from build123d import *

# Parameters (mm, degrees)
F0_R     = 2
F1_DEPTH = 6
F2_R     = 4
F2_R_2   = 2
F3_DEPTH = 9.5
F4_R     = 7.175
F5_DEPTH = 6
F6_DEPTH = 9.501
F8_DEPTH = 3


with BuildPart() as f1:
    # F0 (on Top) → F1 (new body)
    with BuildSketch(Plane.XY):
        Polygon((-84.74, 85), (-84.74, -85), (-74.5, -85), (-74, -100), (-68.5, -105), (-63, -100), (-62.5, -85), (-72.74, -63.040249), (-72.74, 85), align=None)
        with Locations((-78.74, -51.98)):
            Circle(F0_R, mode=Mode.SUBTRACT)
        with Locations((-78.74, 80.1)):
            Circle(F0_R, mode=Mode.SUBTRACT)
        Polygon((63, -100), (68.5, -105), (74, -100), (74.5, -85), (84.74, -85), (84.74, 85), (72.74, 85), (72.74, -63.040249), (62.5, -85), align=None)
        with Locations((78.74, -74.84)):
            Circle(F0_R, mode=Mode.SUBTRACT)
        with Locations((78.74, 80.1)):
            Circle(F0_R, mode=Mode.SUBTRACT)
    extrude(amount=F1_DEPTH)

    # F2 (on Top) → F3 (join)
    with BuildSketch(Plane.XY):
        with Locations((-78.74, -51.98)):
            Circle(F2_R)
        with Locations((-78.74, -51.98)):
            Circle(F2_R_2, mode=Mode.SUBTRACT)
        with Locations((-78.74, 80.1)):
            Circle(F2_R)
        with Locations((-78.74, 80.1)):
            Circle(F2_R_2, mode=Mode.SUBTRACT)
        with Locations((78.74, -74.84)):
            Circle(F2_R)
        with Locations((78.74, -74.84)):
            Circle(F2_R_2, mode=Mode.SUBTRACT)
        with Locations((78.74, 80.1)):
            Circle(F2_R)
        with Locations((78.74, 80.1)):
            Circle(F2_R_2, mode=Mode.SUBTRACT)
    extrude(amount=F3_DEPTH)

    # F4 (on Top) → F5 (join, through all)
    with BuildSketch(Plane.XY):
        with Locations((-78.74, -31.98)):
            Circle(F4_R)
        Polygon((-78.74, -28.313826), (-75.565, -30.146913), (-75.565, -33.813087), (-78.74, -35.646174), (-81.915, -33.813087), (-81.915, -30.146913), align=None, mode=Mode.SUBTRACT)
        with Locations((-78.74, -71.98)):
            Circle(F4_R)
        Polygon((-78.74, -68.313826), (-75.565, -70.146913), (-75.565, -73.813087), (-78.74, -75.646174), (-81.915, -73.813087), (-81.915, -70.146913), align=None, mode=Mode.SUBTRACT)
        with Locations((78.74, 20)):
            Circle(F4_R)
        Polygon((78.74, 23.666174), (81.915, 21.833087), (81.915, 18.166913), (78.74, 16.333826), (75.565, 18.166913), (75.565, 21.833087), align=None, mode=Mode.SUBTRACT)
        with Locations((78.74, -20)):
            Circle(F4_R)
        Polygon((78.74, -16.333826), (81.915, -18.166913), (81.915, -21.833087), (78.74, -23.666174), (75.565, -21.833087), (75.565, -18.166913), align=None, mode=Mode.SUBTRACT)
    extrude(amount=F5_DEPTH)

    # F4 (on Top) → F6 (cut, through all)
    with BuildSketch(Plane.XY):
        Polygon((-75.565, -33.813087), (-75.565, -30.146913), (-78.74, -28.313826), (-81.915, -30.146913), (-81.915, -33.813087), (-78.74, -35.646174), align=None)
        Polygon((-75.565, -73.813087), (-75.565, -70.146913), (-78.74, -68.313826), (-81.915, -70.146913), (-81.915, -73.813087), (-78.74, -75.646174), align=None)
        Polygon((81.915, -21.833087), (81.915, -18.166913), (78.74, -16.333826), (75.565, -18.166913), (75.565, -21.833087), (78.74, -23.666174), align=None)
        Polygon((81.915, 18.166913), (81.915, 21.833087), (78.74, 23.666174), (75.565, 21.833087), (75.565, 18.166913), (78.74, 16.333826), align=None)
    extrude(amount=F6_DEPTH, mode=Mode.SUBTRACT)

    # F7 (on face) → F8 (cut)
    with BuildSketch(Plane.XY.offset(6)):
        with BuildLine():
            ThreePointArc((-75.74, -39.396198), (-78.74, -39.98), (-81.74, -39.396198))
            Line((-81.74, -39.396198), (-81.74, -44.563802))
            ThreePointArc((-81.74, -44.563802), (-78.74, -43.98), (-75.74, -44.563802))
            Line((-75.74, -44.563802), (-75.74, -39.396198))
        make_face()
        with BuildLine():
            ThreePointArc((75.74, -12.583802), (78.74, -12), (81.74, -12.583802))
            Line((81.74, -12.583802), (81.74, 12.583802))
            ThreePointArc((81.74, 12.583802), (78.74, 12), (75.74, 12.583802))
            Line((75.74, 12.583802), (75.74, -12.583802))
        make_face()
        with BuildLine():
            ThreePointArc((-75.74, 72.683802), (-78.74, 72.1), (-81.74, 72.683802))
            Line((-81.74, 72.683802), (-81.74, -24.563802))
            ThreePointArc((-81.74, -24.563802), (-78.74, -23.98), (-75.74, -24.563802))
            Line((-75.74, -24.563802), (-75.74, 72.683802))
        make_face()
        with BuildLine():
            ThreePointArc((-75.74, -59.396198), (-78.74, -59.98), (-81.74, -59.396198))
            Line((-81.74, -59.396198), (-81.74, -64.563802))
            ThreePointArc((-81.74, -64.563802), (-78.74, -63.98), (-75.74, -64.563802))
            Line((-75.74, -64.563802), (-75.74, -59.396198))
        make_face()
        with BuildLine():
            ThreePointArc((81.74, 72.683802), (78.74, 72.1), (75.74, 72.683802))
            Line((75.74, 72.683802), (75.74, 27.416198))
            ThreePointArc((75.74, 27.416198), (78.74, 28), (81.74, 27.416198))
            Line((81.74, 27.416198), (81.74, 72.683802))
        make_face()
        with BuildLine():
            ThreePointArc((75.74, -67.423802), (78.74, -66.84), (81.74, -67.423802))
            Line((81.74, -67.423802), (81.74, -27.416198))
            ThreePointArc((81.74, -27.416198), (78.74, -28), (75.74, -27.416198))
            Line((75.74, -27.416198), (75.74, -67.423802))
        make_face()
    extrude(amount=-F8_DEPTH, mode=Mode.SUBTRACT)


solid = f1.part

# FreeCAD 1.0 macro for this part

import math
import FreeCAD as App
import Part
import Sketcher
from FreeCAD import Vector
Q = App.Units.Quantity


def add_polygon(sketch, points):
    """Adds a closed chain of lines whose ends are joined by coincident constraints."""
    first, n = sketch.GeometryCount, len(points)
    for a, b in zip(points, points[1:] + points[:1]):
        sketch.addGeometry(Part.LineSegment(App.Vector(*a, 0), App.Vector(*b, 0)), False)
    for i in range(n):
        sketch.addConstraint(Sketcher.Constraint("Coincident", first + i, 2, first + (i + 1) % n, 1))

doc = App.newDocument("Part")
body = doc.addObject("PartDesign::Body", "Body")
body.AllowCompound = True

# Sketch on XY plane
sketch1 = body.newObject("Sketcher::SketchObject", "Sketch")
sketch1.AttachmentSupport = (doc.getObject("XY_Plane"), [""])
sketch1.MapMode = "FlatFace"
add_polygon(sketch1, [(-84.74, 85), (-84.74, -85), (-74.5, -85), (-74, -100), (-68.5, -105), (-63, -100), (-62.5, -85), (-72.74, -63.040249), (-72.74, 85)])  # lines 0-8
sketch1.addGeometry(Part.Circle(Vector(-78.74, -51.98, 0), Vector(0, 0, 1), 2), False)  # 9
sketch1.addGeometry(Part.Circle(Vector(-78.74, 80.1, 0), Vector(0, 0, 1), 2), False)  # 10
add_polygon(sketch1, [(63, -100), (68.5, -105), (74, -100), (74.5, -85), (84.74, -85), (84.74, 85), (72.74, 85), (72.74, -63.040249), (62.5, -85)])  # lines 11-19
sketch1.addGeometry(Part.Circle(Vector(78.74, -74.84, 0), Vector(0, 0, 1), 2), False)  # 20
sketch1.addGeometry(Part.Circle(Vector(78.74, 80.1, 0), Vector(0, 0, 1), 2), False)  # 21
sketch1.addConstraint([
    Sketcher.Constraint("Vertical", 0),
    Sketcher.Constraint("Horizontal", 1),
    Sketcher.Constraint("Vertical", 7),
    Sketcher.Constraint("Horizontal", 8),
    Sketcher.Constraint("Horizontal", 14),
    Sketcher.Constraint("Vertical", 15),
    Sketcher.Constraint("Horizontal", 16),
    Sketcher.Constraint("Vertical", 17),
    Sketcher.Constraint("Equal", 9, 10),
    Sketcher.Constraint("Equal", 10, 20),
    Sketcher.Constraint("Equal", 20, 21),
    Sketcher.Constraint("Symmetric", 8, 2, 14, 2, -1, 1),
    Sketcher.Constraint("Symmetric", 10, 3, 21, 3, -2),
    Sketcher.Constraint("Symmetric", 3, 2, 11, 2, -2),
    Sketcher.Constraint("Symmetric", 2, 2, 12, 2, -2),
    Sketcher.Constraint("Symmetric", 1, 2, 13, 2, -2),
    Sketcher.Constraint("Symmetric", 7, 2, 16, 2, -2),
    Sketcher.Constraint("Symmetric", 5, 2, 18, 2, -2),
    Sketcher.Constraint("Symmetric", 4, 2, 19, 2, -2),
    Sketcher.Constraint("Parallel", 3, 11),
    Sketcher.Constraint("Parallel", 5, 13),
    Sketcher.Constraint("Horizontal", 2, 2, 4, 2),
    Sketcher.Constraint("Horizontal", 1, 2, 5, 2),
    Sketcher.Constraint("Horizontal", 6, 2, 17, 2),
    Sketcher.Constraint("Vertical", 9, 3, 10, 3),
    Sketcher.Constraint("Vertical", 20, 3, 21, 3),
    Sketcher.Constraint("Diameter", 9, 4.0),
    Sketcher.Constraint("DistanceX", 8, 2, 8, 1, 12.0),
    Sketcher.Constraint("DistanceY", 0, 2, 0, 1, 170.0),
    Sketcher.Constraint("Angle", 6, Q("115 deg")),
    Sketcher.Constraint("DistanceX", 2, 2, -1, 1, 74.0),
    Sketcher.Constraint("DistanceY", 2, 2, -1, 1, 100.0),
    Sketcher.Constraint("DistanceY", 3, 2, -1, 1, 105.0),
    Sketcher.Constraint("DistanceX", 4, 2, -1, 1, 63.0),
    Sketcher.Constraint("DistanceX", 0, 2, 9, 3, 6.0),
    Sketcher.Constraint("DistanceX", 1, 2, 3, 2, 6.0),
    Sketcher.Constraint("DistanceX", 1, 1, 1, 2, 10.24),
    Sketcher.Constraint("DistanceY", -1, 1, 10, 3, 80.1),
    Sketcher.Constraint("DistanceY", 9, 3, -1, 1, 51.98),
    Sketcher.Constraint("DistanceY", 20, 3, -1, 1, 74.84),
])
pad1 = body.newObject("PartDesign::Pad", "Pad")
pad1.Profile = sketch1
pad1.Length = 6

# Sketch on XY plane
sketch2 = body.newObject("Sketcher::SketchObject", "Sketch001")
sketch2.AttachmentSupport = (doc.getObject("XY_Plane"), [""])
sketch2.MapMode = "FlatFace"
sketch2.addGeometry([
    Part.Circle(Vector(-78.74, -51.98, 0), Vector(0, 0, 1), 4),  # 0
    Part.Circle(Vector(-78.74, -51.98, 0), Vector(0, 0, 1), 2),  # 1
    Part.Circle(Vector(-78.74, 80.1, 0), Vector(0, 0, 1), 4),  # 2
    Part.Circle(Vector(-78.74, 80.1, 0), Vector(0, 0, 1), 2),  # 3
    Part.Circle(Vector(78.74, -74.84, 0), Vector(0, 0, 1), 4),  # 4
    Part.Circle(Vector(78.74, -74.84, 0), Vector(0, 0, 1), 2),  # 5
    Part.Circle(Vector(78.74, 80.1, 0), Vector(0, 0, 1), 4),  # 6
    Part.Circle(Vector(78.74, 80.1, 0), Vector(0, 0, 1), 2),  # 7
], False)
sketch2.addConstraint([
    Sketcher.Constraint("Coincident", 1, 3, 0, 3),
    Sketcher.Constraint("Coincident", 3, 3, 2, 3),
    Sketcher.Constraint("Coincident", 5, 3, 4, 3),
    Sketcher.Constraint("Coincident", 7, 3, 6, 3),
    Sketcher.Constraint("Equal", 0, 2),
    Sketcher.Constraint("Equal", 1, 3),
    Sketcher.Constraint("Equal", 2, 4),
    Sketcher.Constraint("Equal", 3, 5),
    Sketcher.Constraint("Equal", 4, 6),
    Sketcher.Constraint("Equal", 5, 7),
    Sketcher.Constraint("Symmetric", 2, 3, 6, 3, -2),
    Sketcher.Constraint("Vertical", 1, 3, 2, 3),
    Sketcher.Constraint("Vertical", 5, 3, 6, 3),
    Sketcher.Constraint("Diameter", 0, 8.0),
    Sketcher.Constraint("Diameter", 1, 4.0),
    Sketcher.Constraint("DistanceY", -1, 1, 2, 3, 80.1),
    Sketcher.Constraint("DistanceX", 0, 3, -1, 1, 78.74),
    Sketcher.Constraint("DistanceY", 0, 3, -1, 1, 51.98),
    Sketcher.Constraint("DistanceY", 4, 3, -1, 1, 74.84),
])
pad2 = body.newObject("PartDesign::Pad", "Pad001")
pad2.Profile = sketch2
pad2.Length = 9.5

# Sketch on XY plane
sketch3 = body.newObject("Sketcher::SketchObject", "Sketch002")
sketch3.AttachmentSupport = (doc.getObject("XY_Plane"), [""])
sketch3.MapMode = "FlatFace"
sketch3.addGeometry(Part.Circle(Vector(-78.74, -31.98, 0), Vector(0, 0, 1), 7.175), False)  # 0
add_polygon(sketch3, [(-81.915, -30.146913), (-78.74, -28.313826), (-75.565, -30.146913), (-75.565, -33.813087), (-78.74, -35.646174), (-81.915, -33.813087)])  # lines 1-6
sketch3.addGeometry(Part.Circle(Vector(-78.74, -71.98, 0), Vector(0, 0, 1), 7.175), False)  # 7
add_polygon(sketch3, [(-81.915, -70.146913), (-78.74, -68.313826), (-75.565, -70.146913), (-75.565, -73.813087), (-78.74, -75.646174), (-81.915, -73.813087)])  # lines 8-13
sketch3.addGeometry(Part.Circle(Vector(78.74, 20, 0), Vector(0, 0, 1), 7.175), False)  # 14
add_polygon(sketch3, [(75.565, 21.833087), (78.74, 23.666174), (81.915, 21.833087), (81.915, 18.166913), (78.74, 16.333826), (75.565, 18.166913)])  # lines 15-20
sketch3.addGeometry(Part.Circle(Vector(78.74, -20, 0), Vector(0, 0, 1), 7.175), False)  # 21
add_polygon(sketch3, [(75.565, -18.166913), (78.74, -16.333826), (81.915, -18.166913), (81.915, -21.833087), (78.74, -23.666174), (75.565, -21.833087)])  # lines 22-27
sketch3.addConstraint([
    Sketcher.Constraint("Vertical", 3),
    Sketcher.Constraint("Vertical", 6),
    Sketcher.Constraint("Vertical", 10),
    Sketcher.Constraint("Vertical", 13),
    Sketcher.Constraint("Vertical", 17),
    Sketcher.Constraint("Vertical", 20),
    Sketcher.Constraint("Vertical", 24),
    Sketcher.Constraint("Vertical", 27),
    Sketcher.Constraint("Equal", 0, 7),
    Sketcher.Constraint("Equal", 7, 14),
    Sketcher.Constraint("Equal", 14, 21),
    Sketcher.Constraint("Symmetric", 14, 3, 21, 3, -1),
    Sketcher.Constraint("Symmetric", 18, 2, 22, 2, -1),
    Sketcher.Constraint("Symmetric", 17, 2, 23, 2, -1),
    Sketcher.Constraint("Symmetric", 15, 2, 25, 2, -1),
    Sketcher.Constraint("Symmetric", 20, 2, 26, 2, -1),
    Sketcher.Constraint("Parallel", 1, 4),
    Sketcher.Constraint("Parallel", 2, 5),
    Sketcher.Constraint("Parallel", 4, 8),
    Sketcher.Constraint("Parallel", 5, 9),
    Sketcher.Constraint("Parallel", 8, 11),
    Sketcher.Constraint("Parallel", 9, 12),
    Sketcher.Constraint("Parallel", 11, 15),
    Sketcher.Constraint("Parallel", 12, 16),
    Sketcher.Constraint("Parallel", 15, 18),
    Sketcher.Constraint("Parallel", 16, 19),
    Sketcher.Constraint("Parallel", 18, 22),
    Sketcher.Constraint("Parallel", 19, 23),
    Sketcher.Constraint("Parallel", 22, 25),
    Sketcher.Constraint("Horizontal", 3, 2, 5, 2),
    Sketcher.Constraint("Horizontal", 2, 2, 6, 2),
    Sketcher.Constraint("Horizontal", 10, 2, 12, 2),
    Sketcher.Constraint("Horizontal", 9, 2, 13, 2),
    Sketcher.Constraint("Horizontal", 17, 2, 19, 2),
    Sketcher.Constraint("Horizontal", 16, 2, 20, 2),
    Sketcher.Constraint("Vertical", 0, 3, 7, 3),
    Sketcher.Constraint("Vertical", 7, 3, 1, 2),
    Sketcher.Constraint("Vertical", 4, 2, 8, 2),
    Sketcher.Constraint("Vertical", 3, 2, 9, 2),
    Sketcher.Constraint("Vertical", 21, 3, 15, 2),
    Sketcher.Constraint("Equal", 6, 10),
    Sketcher.Constraint("Equal", 13, 17),
    Sketcher.Constraint("Equal", 12, 15),
    Sketcher.Constraint("Diameter", 0, 14.35),
    Sketcher.Constraint("Angle", 1, Q("29.999999 deg")),
    Sketcher.Constraint("DistanceY", -1, 1, 14, 3, 20.0),
    Sketcher.Constraint("DistanceY", 7, 3, 0, 3, 40.0),
    Sketcher.Constraint("DistanceY", 10, 2, 3, 2, 40.0),
    Sketcher.Constraint("DistanceY", 24, 2, 17, 2, 40.0),
    Sketcher.Constraint("DistanceX", 0, 3, -1, 1, 78.74),
    Sketcher.Constraint("DistanceY", 0, 3, -1, 1, 31.98),
    Sketcher.Constraint("DistanceX", -1, 1, 14, 3, 78.74),
    Sketcher.Constraint("DistanceX", 5, 2, 3, 2, 6.35),
    Sketcher.Constraint("DistanceY", 1, 2, 15, 2, 51.98),
    Sketcher.Constraint("DistanceY", 3, 2, 3, 1, 3.666174),
])
pad3 = body.newObject("PartDesign::Pad", "Pad002")
pad3.Profile = sketch3
pad3.Length = 6

# Sketch on XY plane
sketch4 = body.newObject("Sketcher::SketchObject", "Sketch003")
sketch4.AttachmentSupport = (doc.getObject("XY_Plane"), [""])
sketch4.MapMode = "FlatFace"
add_polygon(sketch4, [(-75.565, -33.813087), (-75.565, -30.146913), (-78.74, -28.313826), (-81.915, -30.146913), (-81.915, -33.813087), (-78.74, -35.646174)])  # lines 0-5
add_polygon(sketch4, [(-75.565, -73.813087), (-75.565, -70.146913), (-78.74, -68.313826), (-81.915, -70.146913), (-81.915, -73.813087), (-78.74, -75.646174)])  # lines 6-11
add_polygon(sketch4, [(81.915, -21.833087), (81.915, -18.166913), (78.74, -16.333826), (75.565, -18.166913), (75.565, -21.833087), (78.74, -23.666174)])  # lines 12-17
add_polygon(sketch4, [(81.915, 18.166913), (81.915, 21.833087), (78.74, 23.666174), (75.565, 21.833087), (75.565, 18.166913), (78.74, 16.333826)])  # lines 18-23
sketch4.addConstraint([
    Sketcher.Constraint("Vertical", 0),
    Sketcher.Constraint("Vertical", 3),
    Sketcher.Constraint("Vertical", 6),
    Sketcher.Constraint("Vertical", 9),
    Sketcher.Constraint("Vertical", 12),
    Sketcher.Constraint("Vertical", 15),
    Sketcher.Constraint("Vertical", 18),
    Sketcher.Constraint("Vertical", 21),
    Sketcher.Constraint("Symmetric", 17, 2, 18, 2, -1),
    Sketcher.Constraint("Symmetric", 16, 2, 19, 2, -1),
    Sketcher.Constraint("Symmetric", 15, 2, 20, 2, -1),
    Sketcher.Constraint("Symmetric", 13, 2, 22, 2, -1),
    Sketcher.Constraint("Parallel", 1, 4),
    Sketcher.Constraint("Parallel", 2, 5),
    Sketcher.Constraint("Parallel", 4, 7),
    Sketcher.Constraint("Parallel", 5, 8),
    Sketcher.Constraint("Parallel", 7, 10),
    Sketcher.Constraint("Parallel", 8, 11),
    Sketcher.Constraint("Parallel", 10, 13),
    Sketcher.Constraint("Parallel", 11, 14),
    Sketcher.Constraint("Parallel", 13, 16),
    Sketcher.Constraint("Parallel", 14, 17),
    Sketcher.Constraint("Parallel", 16, 19),
    Sketcher.Constraint("Parallel", 19, 22),
    Sketcher.Constraint("Parallel", 20, 23),
    Sketcher.Constraint("Horizontal", 0, 2, 2, 2),
    Sketcher.Constraint("Horizontal", 3, 2, 5, 2),
    Sketcher.Constraint("Horizontal", 6, 2, 8, 2),
    Sketcher.Constraint("Horizontal", 9, 2, 11, 2),
    Sketcher.Constraint("Horizontal", 12, 2, 14, 2),
    Sketcher.Constraint("Horizontal", 15, 2, 17, 2),
    Sketcher.Constraint("Vertical", 5, 2, 6, 2),
    Sketcher.Constraint("Vertical", 4, 2, 7, 2),
    Sketcher.Constraint("Equal", 3, 6),
    Sketcher.Constraint("Equal", 9, 12),
    Sketcher.Constraint("Equal", 11, 13),
    Sketcher.Constraint("Angle", 1, Q("150.000001 deg")),
    Sketcher.Constraint("DistanceY", 6, 2, 0, 2, 40.0),
    Sketcher.Constraint("DistanceY", 12, 2, 18, 2, 40.0),
    Sketcher.Constraint("DistanceX", 1, 2, -1, 1, 78.74),
    Sketcher.Constraint("DistanceX", -1, 1, 13, 2, 78.74),
    Sketcher.Constraint("DistanceX", 2, 2, 0, 2, 6.35),
    Sketcher.Constraint("DistanceY", 0, 2, 12, 2, 11.98),
    Sketcher.Constraint("DistanceY", 0, 1, 0, 2, 3.666174),
])
pocket1 = body.newObject("PartDesign::Pocket", "Pocket")
pocket1.Profile = sketch4
pocket1.Type = "ThroughAll"
pocket1.Reversed = True

# Sketch on XY plane
sketch5 = body.newObject("Sketcher::SketchObject", "Sketch004")
sketch5.AttachmentSupport = (doc.getObject("XY_Plane"), [""])
sketch5.MapMode = "FlatFace"
sketch5.AttachmentOffset = App.Placement(Vector(0, 0, 6), App.Rotation())
sketch5.addGeometry([
    Part.ArcOfCircle(Part.Circle(Vector(-78.74, -31.980006, 0), Vector(0, 0, 1), 7.999994), math.radians(-112.024331), math.radians(-67.975669)),  # 0
    Part.LineSegment(Vector(-81.74, -39.396198, 0), Vector(-81.74, -44.563802, 0)),  # 1
    Part.ArcOfCircle(Part.Circle(Vector(-78.74, -51.979994, 0), Vector(0, 0, 1), 7.999994), math.radians(67.975669), math.radians(112.024331)),  # 2
    Part.LineSegment(Vector(-75.74, -44.563802, 0), Vector(-75.74, -39.396198, 0)),  # 3
    Part.ArcOfCircle(Part.Circle(Vector(78.74, -19.999994, 0), Vector(0, 0, 1), 7.999994), math.radians(67.975669), math.radians(112.024331)),  # 4
    Part.LineSegment(Vector(81.74, -12.583802, 0), Vector(81.74, 12.583802, 0)),  # 5
    Part.ArcOfCircle(Part.Circle(Vector(78.74, 19.999994, 0), Vector(0, 0, 1), 7.999994), math.radians(-112.024331), math.radians(-67.975669)),  # 6
    Part.LineSegment(Vector(75.74, 12.583802, 0), Vector(75.74, -12.583802, 0)),  # 7
    Part.ArcOfCircle(Part.Circle(Vector(-78.74, 80.099994, 0), Vector(0, 0, 1), 7.999994), math.radians(-112.024331), math.radians(-67.975669)),  # 8
    Part.LineSegment(Vector(-81.74, 72.683802, 0), Vector(-81.74, -24.563802, 0)),  # 9
    Part.ArcOfCircle(Part.Circle(Vector(-78.74, -31.979994, 0), Vector(0, 0, 1), 7.999994), math.radians(67.975669), math.radians(112.024331)),  # 10
    Part.LineSegment(Vector(-75.74, -24.563802, 0), Vector(-75.74, 72.683802, 0)),  # 11
    Part.ArcOfCircle(Part.Circle(Vector(-78.74, -51.980006, 0), Vector(0, 0, 1), 7.999994), math.radians(-112.024331), math.radians(-67.975669)),  # 12
    Part.LineSegment(Vector(-81.74, -59.396198, 0), Vector(-81.74, -64.563802, 0)),  # 13
    Part.ArcOfCircle(Part.Circle(Vector(-78.74, -71.979994, 0), Vector(0, 0, 1), 7.999994), math.radians(67.975669), math.radians(112.024331)),  # 14
    Part.LineSegment(Vector(-75.74, -64.563802, 0), Vector(-75.74, -59.396198, 0)),  # 15
    Part.ArcOfCircle(Part.Circle(Vector(78.74, 80.099994, 0), Vector(0, 0, 1), 7.999994), math.radians(-112.024331), math.radians(-67.975669)),  # 16
    Part.LineSegment(Vector(75.74, 72.683802, 0), Vector(75.74, 27.416198, 0)),  # 17
    Part.ArcOfCircle(Part.Circle(Vector(78.74, 20.000006, 0), Vector(0, 0, 1), 7.999994), math.radians(67.975669), math.radians(112.024331)),  # 18
    Part.LineSegment(Vector(81.74, 27.416198, 0), Vector(81.74, 72.683802, 0)),  # 19
    Part.ArcOfCircle(Part.Circle(Vector(78.74, -74.839994, 0), Vector(0, 0, 1), 7.999994), math.radians(67.975669), math.radians(112.024331)),  # 20
    Part.LineSegment(Vector(81.74, -67.423802, 0), Vector(81.74, -27.416198, 0)),  # 21
    Part.ArcOfCircle(Part.Circle(Vector(78.74, -20.000006, 0), Vector(0, 0, 1), 7.999994), math.radians(-112.024331), math.radians(-67.975669)),  # 22
    Part.LineSegment(Vector(75.74, -27.416198, 0), Vector(75.74, -67.423802, 0)),  # 23
], False)
sketch5.addConstraint([
    Sketcher.Constraint("Coincident", 0, 1, 1, 1),
    Sketcher.Constraint("Coincident", 1, 2, 2, 2),
    Sketcher.Constraint("Coincident", 2, 1, 3, 1),
    Sketcher.Constraint("Coincident", 3, 2, 0, 2),
    Sketcher.Constraint("Coincident", 4, 1, 5, 1),
    Sketcher.Constraint("Coincident", 5, 2, 6, 2),
    Sketcher.Constraint("Coincident", 6, 1, 7, 1),
    Sketcher.Constraint("Coincident", 7, 2, 4, 2),
    Sketcher.Constraint("Coincident", 8, 1, 9, 1),
    Sketcher.Constraint("Coincident", 9, 2, 10, 2),
    Sketcher.Constraint("Coincident", 10, 1, 11, 1),
    Sketcher.Constraint("Coincident", 11, 2, 8, 2),
    Sketcher.Constraint("Coincident", 12, 1, 13, 1),
    Sketcher.Constraint("Coincident", 13, 2, 14, 2),
    Sketcher.Constraint("Coincident", 14, 1, 15, 1),
    Sketcher.Constraint("Coincident", 15, 2, 12, 2),
    Sketcher.Constraint("Coincident", 16, 1, 17, 1),
    Sketcher.Constraint("Coincident", 17, 2, 18, 2),
    Sketcher.Constraint("Coincident", 18, 1, 19, 1),
    Sketcher.Constraint("Coincident", 19, 2, 16, 2),
    Sketcher.Constraint("Coincident", 20, 1, 21, 1),
    Sketcher.Constraint("Coincident", 21, 2, 22, 2),
    Sketcher.Constraint("Coincident", 22, 1, 23, 1),
    Sketcher.Constraint("Coincident", 23, 2, 20, 2),
    Sketcher.Constraint("Vertical", 1),
    Sketcher.Constraint("Vertical", 3),
    Sketcher.Constraint("Vertical", 5),
    Sketcher.Constraint("Vertical", 7),
    Sketcher.Constraint("Vertical", 9),
    Sketcher.Constraint("Vertical", 11),
    Sketcher.Constraint("Vertical", 13),
    Sketcher.Constraint("Vertical", 15),
    Sketcher.Constraint("Vertical", 17),
    Sketcher.Constraint("Vertical", 19),
    Sketcher.Constraint("Vertical", 21),
    Sketcher.Constraint("Vertical", 23),
    Sketcher.Constraint("Equal", 0, 2),
    Sketcher.Constraint("Equal", 2, 4),
    Sketcher.Constraint("Equal", 4, 6),
    Sketcher.Constraint("Equal", 6, 8),
    Sketcher.Constraint("Equal", 8, 10),
    Sketcher.Constraint("Equal", 10, 12),
    Sketcher.Constraint("Equal", 12, 14),
    Sketcher.Constraint("Equal", 14, 16),
    Sketcher.Constraint("Equal", 16, 18),
    Sketcher.Constraint("Equal", 18, 20),
    Sketcher.Constraint("Equal", 20, 22),
    Sketcher.Constraint("Symmetric", 8, 3, 16, 3, -2),
    Sketcher.Constraint("Symmetric", 4, 3, 6, 3, -1),
    Sketcher.Constraint("Symmetric", 18, 3, 22, 3, -1),
    Sketcher.Constraint("Horizontal", 1, 2, 2, 1),
    Sketcher.Constraint("Horizontal", 0, 1, 3, 2),
    Sketcher.Constraint("Horizontal", 5, 2, 6, 1),
    Sketcher.Constraint("Horizontal", 9, 2, 10, 1),
    Sketcher.Constraint("Horizontal", 8, 1, 11, 2),
    Sketcher.Constraint("Horizontal", 13, 2, 14, 1),
    Sketcher.Constraint("Horizontal", 12, 1, 15, 2),
    Sketcher.Constraint("Horizontal", 11, 2, 16, 1),
    Sketcher.Constraint("Horizontal", 17, 2, 18, 1),
    Sketcher.Constraint("Horizontal", 16, 1, 19, 2),
    Sketcher.Constraint("Horizontal", 21, 2, 22, 1),
    Sketcher.Constraint("Horizontal", 20, 1, 23, 2),
    Sketcher.Constraint("Vertical", 2, 3, 8, 3),
    Sketcher.Constraint("Vertical", 10, 3, 12, 3),
    Sketcher.Constraint("Vertical", 6, 3, 16, 3),
    Sketcher.Constraint("Vertical", 1, 2, 8, 1),
    Sketcher.Constraint("Vertical", 9, 2, 12, 1),
    Sketcher.Constraint("Vertical", 7, 2, 16, 1),
    Sketcher.Constraint("Vertical", 19, 2, 20, 1),
    Sketcher.Constraint("Equal", 3, 13),
    Sketcher.Constraint("DistanceY", 2, 3, 10, 3, 20.0),
    Sketcher.Constraint("DistanceY", 12, 3, 0, 3, 20.0),
    Sketcher.Constraint("DistanceY", 4, 3, 18, 3, 40.0),
    Sketcher.Constraint("DistanceX", 0, 1, 0, 3, 3.0),
    Sketcher.Constraint("DistanceY", 6, 3, 8, 3, 60.1),
    Sketcher.Constraint("DistanceX", 0, 3, -1, 1, 78.74),
    Sketcher.Constraint("DistanceY", 2, 3, 4, 3, 31.98),
    Sketcher.Constraint("DistanceY", 0, 3, 6, 3, 51.98),
    Sketcher.Constraint("DistanceY", 20, 3, 4, 3, 54.84),
    Sketcher.Constraint("Radius", 0, 7.999994),
    Sketcher.Constraint("DistanceY", 9, 2, -1, 1, 24.563802),
])
pocket2 = body.newObject("PartDesign::Pocket", "Pocket001")
pocket2.Profile = sketch5
pocket2.Length = 3

doc.recompute()
